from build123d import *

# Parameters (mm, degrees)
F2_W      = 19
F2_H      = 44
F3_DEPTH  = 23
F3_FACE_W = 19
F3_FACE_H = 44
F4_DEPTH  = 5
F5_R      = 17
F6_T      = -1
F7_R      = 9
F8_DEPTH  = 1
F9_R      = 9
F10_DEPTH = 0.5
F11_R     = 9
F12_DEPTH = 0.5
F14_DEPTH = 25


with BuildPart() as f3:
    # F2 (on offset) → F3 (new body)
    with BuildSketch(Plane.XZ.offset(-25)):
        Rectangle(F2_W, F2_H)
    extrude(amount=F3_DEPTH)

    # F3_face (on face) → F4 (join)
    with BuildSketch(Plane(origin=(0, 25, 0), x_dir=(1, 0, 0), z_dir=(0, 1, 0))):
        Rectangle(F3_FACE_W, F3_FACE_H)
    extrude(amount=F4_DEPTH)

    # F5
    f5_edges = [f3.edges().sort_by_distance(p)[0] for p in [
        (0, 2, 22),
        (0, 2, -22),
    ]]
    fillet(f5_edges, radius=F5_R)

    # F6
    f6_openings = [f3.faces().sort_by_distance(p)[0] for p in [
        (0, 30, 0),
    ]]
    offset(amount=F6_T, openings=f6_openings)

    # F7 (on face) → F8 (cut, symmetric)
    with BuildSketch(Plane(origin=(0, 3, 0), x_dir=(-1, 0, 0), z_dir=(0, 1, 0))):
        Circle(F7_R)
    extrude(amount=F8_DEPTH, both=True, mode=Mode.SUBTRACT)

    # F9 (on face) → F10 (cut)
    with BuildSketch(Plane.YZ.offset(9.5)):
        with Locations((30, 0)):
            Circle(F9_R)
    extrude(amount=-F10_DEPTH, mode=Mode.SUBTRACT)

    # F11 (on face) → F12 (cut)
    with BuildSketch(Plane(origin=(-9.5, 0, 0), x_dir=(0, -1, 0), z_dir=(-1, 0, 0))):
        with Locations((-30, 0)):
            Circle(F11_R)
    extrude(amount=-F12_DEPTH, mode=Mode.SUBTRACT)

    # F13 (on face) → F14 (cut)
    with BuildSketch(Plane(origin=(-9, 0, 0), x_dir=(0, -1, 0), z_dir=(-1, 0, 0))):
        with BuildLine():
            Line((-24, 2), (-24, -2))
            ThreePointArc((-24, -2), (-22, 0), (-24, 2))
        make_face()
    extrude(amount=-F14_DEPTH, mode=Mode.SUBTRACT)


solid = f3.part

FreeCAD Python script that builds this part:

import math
import FreeCAD as App
import Part
import Sketcher
Q = App.Units.Quantity


def edges_at(feature, points):
    """Names of the edges that pass closest to the given points."""
    edges = feature.Shape.Edges
    near = lambda p: min(range(len(edges)), key=lambda i: edges[i].distToShape(Part.Vertex(*p))[0])
    return sorted({f"Edge{near(p) + 1}" for p in points})


def faces_at(feature, points):
    """Names of the faces that lie closest to the given points."""
    faces = feature.Shape.Faces
    near = lambda p: min(range(len(faces)), key=lambda i: faces[i].distToShape(Part.Vertex(*p))[0])
    return sorted({f"Face{near(p) + 1}" for p in points})


def add_polygon(sketch, points):
    """Adds a closed chain of lines whose ends are joined by coincident constraints."""
    first, n = sketch.GeometryCount, len(points)
    for a, b in zip(points, points[1:] + points[:1]):
        sketch.addGeometry(Part.LineSegment(App.Vector(*a, 0), App.Vector(*b, 0)), False)
    for i in range(n):
        sketch.addConstraint(Sketcher.Constraint("Coincident", first + i, 2, first + (i + 1) % n, 1))

doc = App.newDocument("Part")
body = doc.addObject("PartDesign::Body", "Body")

# Sketch on XZ plane
sketch1 = body.newObject("Sketcher::SketchObject", "Sketch")
sketch1.AttachmentSupport = (doc.getObject("XZ_Plane"), [""])
sketch1.MapMode = "FlatFace"
sketch1.AttachmentOffset = App.Placement(App.Vector(0, 0, -25), App.Rotation())
add_polygon(sketch1, [(-10, 22), (-10, -22), (10, -22), (10, 22)])  # lines 0-3
sketch1.addConstraint(Sketcher.Constraint("Vertical", 0))
sketch1.addConstraint(Sketcher.Constraint("Horizontal", 1))
sketch1.addConstraint(Sketcher.Constraint("Vertical", 2))
sketch1.addConstraint(Sketcher.Constraint("Horizontal", 3))
sketch1.addConstraint(Sketcher.Constraint("Symmetric", 0, 2, 2, 2, -1, 1))
sketch1.addConstraint(Sketcher.Constraint("DistanceX", 1, 1, 1, 2, Q("19 mm")))
sketch1.addConstraint(Sketcher.Constraint("DistanceY", 0, 2, 0, 1, Q("44 mm")))
pad1 = body.newObject("PartDesign::Pad", "Pad")
pad1.Profile = sketch1
pad1.Length = 23

# Sketch on XZ plane
sketch2 = body.newObject("Sketcher::SketchObject", "Sketch001")
sketch2.AttachmentSupport = (doc.getObject("XZ_Plane"), [""])
sketch2.MapMode = "FlatFace"
sketch2.AttachmentOffset = App.Placement(App.Vector(0, 0, -25), App.Rotation())
add_polygon(sketch2, [(-10, -22), (-10, 22), (10, 22), (10, -22)])  # lines 0-3
sketch2.addConstraint(Sketcher.Constraint("Vertical", 0))
sketch2.addConstraint(Sketcher.Constraint("Horizontal", 1))
sketch2.addConstraint(Sketcher.Constraint("Vertical", 2))
sketch2.addConstraint(Sketcher.Constraint("Horizontal", 3))
sketch2.addConstraint(Sketcher.Constraint("Symmetric", 0, 2, 2, 2, -1, 1))
sketch2.addConstraint(Sketcher.Constraint("DistanceX", 1, 1, 1, 2, Q("19 mm")))
sketch2.addConstraint(Sketcher.Constraint("DistanceY", 0, 1, 0, 2, Q("44 mm")))
pad2 = body.newObject("PartDesign::Pad", "Pad001")
pad2.Profile = sketch2
pad2.Length = 5
pad2.Reversed = True
doc.recompute()

fillet = body.newObject("PartDesign::Fillet", "Fillet")
fillet.Base = (pad2, edges_at(pad2, [(0, 2, 22), (0, 2, -22)]))
fillet.Radius = 17
doc.recompute()

thickness = body.newObject("PartDesign::Thickness", "Thickness")
thickness.Base = (fillet, faces_at(fillet, [(0, 30, 0)]))
thickness.Value = 1
thickness.Reversed = True
thickness.Join = "Arc"

# Sketch on XZ plane
sketch3 = body.newObject("Sketcher::SketchObject", "Sketch002")
sketch3.AttachmentSupport = (doc.getObject("XZ_Plane"), [""])
sketch3.MapMode = "FlatFace"
sketch3.AttachmentOffset = App.Placement(App.Vector(0, 0, -3), App.Rotation())
sketch3.addGeometry(Part.Circle(App.Vector(0, 0, 0), App.Vector(0, 0, 1), 9), False)
sketch3.addConstraint(Sketcher.Constraint("Coincident", 0, 3, -1, 1))
sketch3.addConstraint(Sketcher.Constraint("Diameter", 0, Q("18 mm")))
pocket1 = body.newObject("PartDesign::Pocket", "Pocket")
pocket1.Profile = sketch3
pocket1.Length = 2
pocket1.Midplane = True

# Sketch on YZ plane
sketch4 = body.newObject("Sketcher::SketchObject", "Sketch003")
sketch4.AttachmentSupport = (doc.getObject("YZ_Plane"), [""])
sketch4.MapMode = "FlatFace"
sketch4.AttachmentOffset = App.Placement(App.Vector(0, 0, 9.5), App.Rotation())
sketch4.addGeometry(Part.Circle(App.Vector(30, 0, 0), App.Vector(0, 0, 1), 9), False)
sketch4.addConstraint(Sketcher.Constraint("PointOnObject", 0, 3, -1))
sketch4.addConstraint(Sketcher.Constraint("Diameter", 0, Q("18 mm")))
sketch4.addConstraint(Sketcher.Constraint("DistanceX", -1, 1, 0, 3, Q("30 mm")))
pocket2 = body.newObject("PartDesign::Pocket", "Pocket001")
pocket2.Profile = sketch4
pocket2.Length = 0.5

# Sketch on YZ plane
sketch5 = body.newObject("Sketcher::SketchObject", "Sketch004")
sketch5.AttachmentSupport = (doc.getObject("YZ_Plane"), [""])
sketch5.MapMode = "FlatFace"
sketch5.AttachmentOffset = App.Placement(App.Vector(0, 0, -9.5), App.Rotation())
sketch5.addGeometry(Part.Circle(App.Vector(30, 0, 0), App.Vector(0, 0, 1), 9), False)
sketch5.addConstraint(Sketcher.Constraint("PointOnObject", 0, 3, -1))
sketch5.addConstraint(Sketcher.Constraint("Diameter", 0, Q("18 mm")))
sketch5.addConstraint(Sketcher.Constraint("DistanceX", -1, 1, 0, 3, Q("30 mm")))
pocket3 = body.newObject("PartDesign::Pocket", "Pocket002")
pocket3.Profile = sketch5
pocket3.Length = 0.5
pocket3.Reversed = True

# Sketch on YZ plane
sketch6 = body.newObject("Sketcher::SketchObject", "Sketch005")
sketch6.AttachmentSupport = (doc.getObject("YZ_Plane"), [""])
sketch6.MapMode = "FlatFace"
sketch6.AttachmentOffset = App.Placement(App.Vector(0, 0, -9), App.Rotation())
sketch6.addGeometry(Part.LineSegment(App.Vector(24, 2, 0), App.Vector(24, -2, 0)), False)
sketch6.addGeometry(Part.ArcOfCircle(Part.Circle(App.Vector(24, 0, 0), App.Vector(0, 0, 1), 2), math.radians(90), math.radians(270)), False)
sketch6.addConstraint(Sketcher.Constraint("Coincident", 0, 1, 1, 1))
sketch6.addConstraint(Sketcher.Constraint("Coincident", 1, 2, 0, 2))
sketch6.addConstraint(Sketcher.Constraint("Vertical", 0))
sketch6.addConstraint(Sketcher.Constraint("PointOnObject", 1, 3, -1))
sketch6.addConstraint(Sketcher.Constraint("Vertical", 1, 3, 0, 1))
sketch6.addConstraint(Sketcher.Constraint("Radius", 1, Q("2 mm")))
sketch6.addConstraint(Sketcher.Constraint("DistanceX", -1, 1, 1, 3, Q("24 mm")))
pocket4 = body.newObject("PartDesign::Pocket", "Pocket003")
pocket4.Profile = sketch6
pocket4.Length = 25
pocket4.Reversed = True

doc.recompute()
